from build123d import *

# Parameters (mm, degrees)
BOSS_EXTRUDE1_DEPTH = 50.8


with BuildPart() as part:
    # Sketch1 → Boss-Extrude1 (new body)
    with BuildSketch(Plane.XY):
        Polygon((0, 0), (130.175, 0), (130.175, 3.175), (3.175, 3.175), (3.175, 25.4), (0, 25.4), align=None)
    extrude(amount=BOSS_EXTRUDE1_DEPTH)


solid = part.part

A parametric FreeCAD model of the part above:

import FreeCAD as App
import Part
import Sketcher

V = App.Vector
Q = App.Units.Quantity

doc = App.newDocument("Part")
params = doc.addObject("Spreadsheet::Sheet", "Params")
for row, (alias, value) in enumerate([
    ("sketch1_width", "5 in"),
    ("sketch1_height", "1 in"),
    ("sketch1_width2", "5.125 in"),
    ("pad1_length", "2 in"),
], start=1):
    params.set(f"A{row}", alias)
    params.set(f"B{row}", "=" + value)
    params.setAlias(f"B{row}", alias)

body = doc.addObject("PartDesign::Body", "Body")

# Sketch on XY plane
sketch1 = body.newObject("Sketcher::SketchObject", "Sketch")
sketch1.AttachmentSupport = (doc.getObject("XY_Plane"), [""])
sketch1.MapMode = "FlatFace"
sketch1.addGeometry([
    Part.LineSegment(V(0, 0, 0), V(130.2, 0, 0)),  # 0
    Part.LineSegment(V(130.2, 0, 0), V(130.2, 3.2, 0)),  # 1
    Part.LineSegment(V(130.2, 3.2, 0), V(3.2, 3.2, 0)),  # 2
    Part.LineSegment(V(3.2, 3.2, 0), V(3.2, 25.4, 0)),  # 3
    Part.LineSegment(V(3.2, 25.4, 0), V(0, 25.4, 0)),  # 4
    Part.LineSegment(V(0, 25.4, 0), V(0, 0, 0)),  # 5
], False)
sketch1.addConstraint([
    Sketcher.Constraint("Coincident", 0, 2, 1, 1),
    Sketcher.Constraint("Coincident", 1, 2, 2, 1),
    Sketcher.Constraint("Coincident", 2, 2, 3, 1),
    Sketcher.Constraint("Coincident", 3, 2, 4, 1),
    Sketcher.Constraint("Coincident", 4, 2, 5, 1),
    Sketcher.Constraint("Coincident", 5, 2, 0, 1),
    Sketcher.Constraint("Horizontal", 0),
    Sketcher.Constraint("Vertical", 1),
    Sketcher.Constraint("Horizontal", 2),
    Sketcher.Constraint("Vertical", 3),
    Sketcher.Constraint("Horizontal", 4),
    Sketcher.Constraint("Vertical", 5),
    Sketcher.Constraint("Coincident", 5, 2, -1, 1),
    Sketcher.Constraint("Equal", 4, 1),
    Sketcher.Constraint("DistanceX", 2, 2, 2, 1, Q("5 in")),
    Sketcher.Constraint("DistanceY", 5, 2, 5, 1, Q("1 in")),
    Sketcher.Constraint("DistanceX", 0, 1, 0, 2, Q("5.125 in")),
])
sketch1.setExpression("Constraints[14]", "Params.sketch1_width")
sketch1.setExpression("Constraints[15]", "Params.sketch1_height")
sketch1.setExpression("Constraints[16]", "Params.sketch1_width2")
pad1 = body.newObject("PartDesign::Pad", "Pad")
pad1.Profile = sketch1
pad1.setExpression("Length", "Params.pad1_length")

doc.recompute()
